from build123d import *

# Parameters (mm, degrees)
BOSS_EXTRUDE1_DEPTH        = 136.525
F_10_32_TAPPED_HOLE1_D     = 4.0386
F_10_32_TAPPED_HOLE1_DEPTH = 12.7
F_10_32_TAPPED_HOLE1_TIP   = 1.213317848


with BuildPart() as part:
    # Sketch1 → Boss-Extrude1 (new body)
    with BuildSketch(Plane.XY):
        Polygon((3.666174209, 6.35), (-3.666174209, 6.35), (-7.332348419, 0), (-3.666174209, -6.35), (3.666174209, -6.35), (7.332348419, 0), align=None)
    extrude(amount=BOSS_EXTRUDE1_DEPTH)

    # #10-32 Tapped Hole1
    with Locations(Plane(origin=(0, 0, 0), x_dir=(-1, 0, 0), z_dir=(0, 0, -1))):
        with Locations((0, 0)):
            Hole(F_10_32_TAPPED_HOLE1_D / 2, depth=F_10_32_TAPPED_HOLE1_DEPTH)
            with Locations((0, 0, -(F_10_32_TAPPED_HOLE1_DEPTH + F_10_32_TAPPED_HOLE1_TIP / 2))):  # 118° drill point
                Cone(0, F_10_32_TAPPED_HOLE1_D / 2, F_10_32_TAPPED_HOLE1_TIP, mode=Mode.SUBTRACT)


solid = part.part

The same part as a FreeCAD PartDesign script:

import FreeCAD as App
import Part
import Sketcher
from FreeCAD import Vector
Q = App.Units.Quantity

doc = App.newDocument("Part")
params = doc.addObject("Spreadsheet::Sheet", "Params")
for row, (alias, value) in enumerate([
    ("pad1_length", "5.375 in"),
    ("sketch2_diameter", "0.159 in"),
    ("hole_diameter", "0.159 in"),
    ("hole_depth", "0.5 in"),
], start=1):
    params.set(f"A{row}", alias)
    params.set(f"B{row}", "=" + value)
    params.setAlias(f"B{row}", alias)

body = doc.addObject("PartDesign::Body", "Body")

# Sketch on XY plane
sketch1 = body.newObject("Sketcher::SketchObject", "Sketch")
sketch1.AttachmentSupport = (doc.getObject("XY_Plane"), [""])
sketch1.MapMode = "FlatFace"
sketch1.addGeometry([
    Part.LineSegment(Vector(4, 6, 0), Vector(-4, 6, 0)),  # 0
    Part.LineSegment(Vector(-4, 6, 0), Vector(-7, 0, 0)),  # 1
    Part.LineSegment(Vector(-7, 0, 0), Vector(-4, -6, 0)),  # 2
    Part.LineSegment(Vector(-4, -6, 0), Vector(4, -6, 0)),  # 3
    Part.LineSegment(Vector(4, -6, 0), Vector(7, 0, 0)),  # 4
    Part.LineSegment(Vector(7, 0, 0), Vector(4, 6, 0)),  # 5
], False)
sketch1.addConstraint([
    Sketcher.Constraint("Coincident", 0, 2, 1, 1),
    Sketcher.Constraint("Coincident", 1, 2, 2, 1),
    Sketcher.Constraint("Coincident", 2, 2, 3, 1),
    Sketcher.Constraint("Coincident", 3, 2, 4, 1),
    Sketcher.Constraint("Coincident", 4, 2, 5, 1),
    Sketcher.Constraint("Coincident", 5, 2, 0, 1),
    Sketcher.Constraint("Horizontal", 0),
    Sketcher.Constraint("Horizontal", 3),
    Sketcher.Constraint("Symmetric", 0, 2, 3, 2, -1, 1),
    Sketcher.Constraint("Symmetric", 1, 2, 4, 2, -1, 1),
    Sketcher.Constraint("PointOnObject", 1, 2, -1),
    Sketcher.Constraint("Parallel", 2, 5),
    Sketcher.Constraint("Vertical", 0, 2, 2, 2),
    Sketcher.Constraint("Angle", 1, Q("-120 deg")),
    Sketcher.Constraint("DistanceY", 2, 2, 0, 2, Q("0.5 in")),
    Sketcher.Constraint("DistanceX", 0, 2, 0, 1, 7.332348),
])
pad1 = body.newObject("PartDesign::Pad", "Pad")
pad1.Profile = sketch1
pad1.setExpression("Length", "Params.pad1_length")

# Sketch on XY plane
sketch2 = body.newObject("Sketcher::SketchObject", "Sketch001")
sketch2.AttachmentSupport = (doc.getObject("XY_Plane"), [""])
sketch2.MapMode = "FlatFace"
sketch2.addGeometry(Part.Circle(Vector(0, 0, 0), Vector(0, 0, 1), 2), False)
sketch2.addConstraint([
    Sketcher.Constraint("Coincident", 0, 3, -1, 1),
    Sketcher.Constraint("Diameter", 0, Q("0.159 in")),
])
sketch2.setExpression("Constraints[1]", "Params.sketch2_diameter")
doc.recompute()
hole = body.newObject("PartDesign::Hole", "Hole")
hole.Profile = sketch2
hole.ThreadType = "None"
hole.setExpression("Diameter", "Params.hole_diameter")
hole.DepthType = "Dimension"
hole.setExpression("Depth", "Params.hole_depth")
hole.DrillPoint = "Angled"
hole.DrillPointAngle = 118
hole.Reversed = True

doc.recompute()
